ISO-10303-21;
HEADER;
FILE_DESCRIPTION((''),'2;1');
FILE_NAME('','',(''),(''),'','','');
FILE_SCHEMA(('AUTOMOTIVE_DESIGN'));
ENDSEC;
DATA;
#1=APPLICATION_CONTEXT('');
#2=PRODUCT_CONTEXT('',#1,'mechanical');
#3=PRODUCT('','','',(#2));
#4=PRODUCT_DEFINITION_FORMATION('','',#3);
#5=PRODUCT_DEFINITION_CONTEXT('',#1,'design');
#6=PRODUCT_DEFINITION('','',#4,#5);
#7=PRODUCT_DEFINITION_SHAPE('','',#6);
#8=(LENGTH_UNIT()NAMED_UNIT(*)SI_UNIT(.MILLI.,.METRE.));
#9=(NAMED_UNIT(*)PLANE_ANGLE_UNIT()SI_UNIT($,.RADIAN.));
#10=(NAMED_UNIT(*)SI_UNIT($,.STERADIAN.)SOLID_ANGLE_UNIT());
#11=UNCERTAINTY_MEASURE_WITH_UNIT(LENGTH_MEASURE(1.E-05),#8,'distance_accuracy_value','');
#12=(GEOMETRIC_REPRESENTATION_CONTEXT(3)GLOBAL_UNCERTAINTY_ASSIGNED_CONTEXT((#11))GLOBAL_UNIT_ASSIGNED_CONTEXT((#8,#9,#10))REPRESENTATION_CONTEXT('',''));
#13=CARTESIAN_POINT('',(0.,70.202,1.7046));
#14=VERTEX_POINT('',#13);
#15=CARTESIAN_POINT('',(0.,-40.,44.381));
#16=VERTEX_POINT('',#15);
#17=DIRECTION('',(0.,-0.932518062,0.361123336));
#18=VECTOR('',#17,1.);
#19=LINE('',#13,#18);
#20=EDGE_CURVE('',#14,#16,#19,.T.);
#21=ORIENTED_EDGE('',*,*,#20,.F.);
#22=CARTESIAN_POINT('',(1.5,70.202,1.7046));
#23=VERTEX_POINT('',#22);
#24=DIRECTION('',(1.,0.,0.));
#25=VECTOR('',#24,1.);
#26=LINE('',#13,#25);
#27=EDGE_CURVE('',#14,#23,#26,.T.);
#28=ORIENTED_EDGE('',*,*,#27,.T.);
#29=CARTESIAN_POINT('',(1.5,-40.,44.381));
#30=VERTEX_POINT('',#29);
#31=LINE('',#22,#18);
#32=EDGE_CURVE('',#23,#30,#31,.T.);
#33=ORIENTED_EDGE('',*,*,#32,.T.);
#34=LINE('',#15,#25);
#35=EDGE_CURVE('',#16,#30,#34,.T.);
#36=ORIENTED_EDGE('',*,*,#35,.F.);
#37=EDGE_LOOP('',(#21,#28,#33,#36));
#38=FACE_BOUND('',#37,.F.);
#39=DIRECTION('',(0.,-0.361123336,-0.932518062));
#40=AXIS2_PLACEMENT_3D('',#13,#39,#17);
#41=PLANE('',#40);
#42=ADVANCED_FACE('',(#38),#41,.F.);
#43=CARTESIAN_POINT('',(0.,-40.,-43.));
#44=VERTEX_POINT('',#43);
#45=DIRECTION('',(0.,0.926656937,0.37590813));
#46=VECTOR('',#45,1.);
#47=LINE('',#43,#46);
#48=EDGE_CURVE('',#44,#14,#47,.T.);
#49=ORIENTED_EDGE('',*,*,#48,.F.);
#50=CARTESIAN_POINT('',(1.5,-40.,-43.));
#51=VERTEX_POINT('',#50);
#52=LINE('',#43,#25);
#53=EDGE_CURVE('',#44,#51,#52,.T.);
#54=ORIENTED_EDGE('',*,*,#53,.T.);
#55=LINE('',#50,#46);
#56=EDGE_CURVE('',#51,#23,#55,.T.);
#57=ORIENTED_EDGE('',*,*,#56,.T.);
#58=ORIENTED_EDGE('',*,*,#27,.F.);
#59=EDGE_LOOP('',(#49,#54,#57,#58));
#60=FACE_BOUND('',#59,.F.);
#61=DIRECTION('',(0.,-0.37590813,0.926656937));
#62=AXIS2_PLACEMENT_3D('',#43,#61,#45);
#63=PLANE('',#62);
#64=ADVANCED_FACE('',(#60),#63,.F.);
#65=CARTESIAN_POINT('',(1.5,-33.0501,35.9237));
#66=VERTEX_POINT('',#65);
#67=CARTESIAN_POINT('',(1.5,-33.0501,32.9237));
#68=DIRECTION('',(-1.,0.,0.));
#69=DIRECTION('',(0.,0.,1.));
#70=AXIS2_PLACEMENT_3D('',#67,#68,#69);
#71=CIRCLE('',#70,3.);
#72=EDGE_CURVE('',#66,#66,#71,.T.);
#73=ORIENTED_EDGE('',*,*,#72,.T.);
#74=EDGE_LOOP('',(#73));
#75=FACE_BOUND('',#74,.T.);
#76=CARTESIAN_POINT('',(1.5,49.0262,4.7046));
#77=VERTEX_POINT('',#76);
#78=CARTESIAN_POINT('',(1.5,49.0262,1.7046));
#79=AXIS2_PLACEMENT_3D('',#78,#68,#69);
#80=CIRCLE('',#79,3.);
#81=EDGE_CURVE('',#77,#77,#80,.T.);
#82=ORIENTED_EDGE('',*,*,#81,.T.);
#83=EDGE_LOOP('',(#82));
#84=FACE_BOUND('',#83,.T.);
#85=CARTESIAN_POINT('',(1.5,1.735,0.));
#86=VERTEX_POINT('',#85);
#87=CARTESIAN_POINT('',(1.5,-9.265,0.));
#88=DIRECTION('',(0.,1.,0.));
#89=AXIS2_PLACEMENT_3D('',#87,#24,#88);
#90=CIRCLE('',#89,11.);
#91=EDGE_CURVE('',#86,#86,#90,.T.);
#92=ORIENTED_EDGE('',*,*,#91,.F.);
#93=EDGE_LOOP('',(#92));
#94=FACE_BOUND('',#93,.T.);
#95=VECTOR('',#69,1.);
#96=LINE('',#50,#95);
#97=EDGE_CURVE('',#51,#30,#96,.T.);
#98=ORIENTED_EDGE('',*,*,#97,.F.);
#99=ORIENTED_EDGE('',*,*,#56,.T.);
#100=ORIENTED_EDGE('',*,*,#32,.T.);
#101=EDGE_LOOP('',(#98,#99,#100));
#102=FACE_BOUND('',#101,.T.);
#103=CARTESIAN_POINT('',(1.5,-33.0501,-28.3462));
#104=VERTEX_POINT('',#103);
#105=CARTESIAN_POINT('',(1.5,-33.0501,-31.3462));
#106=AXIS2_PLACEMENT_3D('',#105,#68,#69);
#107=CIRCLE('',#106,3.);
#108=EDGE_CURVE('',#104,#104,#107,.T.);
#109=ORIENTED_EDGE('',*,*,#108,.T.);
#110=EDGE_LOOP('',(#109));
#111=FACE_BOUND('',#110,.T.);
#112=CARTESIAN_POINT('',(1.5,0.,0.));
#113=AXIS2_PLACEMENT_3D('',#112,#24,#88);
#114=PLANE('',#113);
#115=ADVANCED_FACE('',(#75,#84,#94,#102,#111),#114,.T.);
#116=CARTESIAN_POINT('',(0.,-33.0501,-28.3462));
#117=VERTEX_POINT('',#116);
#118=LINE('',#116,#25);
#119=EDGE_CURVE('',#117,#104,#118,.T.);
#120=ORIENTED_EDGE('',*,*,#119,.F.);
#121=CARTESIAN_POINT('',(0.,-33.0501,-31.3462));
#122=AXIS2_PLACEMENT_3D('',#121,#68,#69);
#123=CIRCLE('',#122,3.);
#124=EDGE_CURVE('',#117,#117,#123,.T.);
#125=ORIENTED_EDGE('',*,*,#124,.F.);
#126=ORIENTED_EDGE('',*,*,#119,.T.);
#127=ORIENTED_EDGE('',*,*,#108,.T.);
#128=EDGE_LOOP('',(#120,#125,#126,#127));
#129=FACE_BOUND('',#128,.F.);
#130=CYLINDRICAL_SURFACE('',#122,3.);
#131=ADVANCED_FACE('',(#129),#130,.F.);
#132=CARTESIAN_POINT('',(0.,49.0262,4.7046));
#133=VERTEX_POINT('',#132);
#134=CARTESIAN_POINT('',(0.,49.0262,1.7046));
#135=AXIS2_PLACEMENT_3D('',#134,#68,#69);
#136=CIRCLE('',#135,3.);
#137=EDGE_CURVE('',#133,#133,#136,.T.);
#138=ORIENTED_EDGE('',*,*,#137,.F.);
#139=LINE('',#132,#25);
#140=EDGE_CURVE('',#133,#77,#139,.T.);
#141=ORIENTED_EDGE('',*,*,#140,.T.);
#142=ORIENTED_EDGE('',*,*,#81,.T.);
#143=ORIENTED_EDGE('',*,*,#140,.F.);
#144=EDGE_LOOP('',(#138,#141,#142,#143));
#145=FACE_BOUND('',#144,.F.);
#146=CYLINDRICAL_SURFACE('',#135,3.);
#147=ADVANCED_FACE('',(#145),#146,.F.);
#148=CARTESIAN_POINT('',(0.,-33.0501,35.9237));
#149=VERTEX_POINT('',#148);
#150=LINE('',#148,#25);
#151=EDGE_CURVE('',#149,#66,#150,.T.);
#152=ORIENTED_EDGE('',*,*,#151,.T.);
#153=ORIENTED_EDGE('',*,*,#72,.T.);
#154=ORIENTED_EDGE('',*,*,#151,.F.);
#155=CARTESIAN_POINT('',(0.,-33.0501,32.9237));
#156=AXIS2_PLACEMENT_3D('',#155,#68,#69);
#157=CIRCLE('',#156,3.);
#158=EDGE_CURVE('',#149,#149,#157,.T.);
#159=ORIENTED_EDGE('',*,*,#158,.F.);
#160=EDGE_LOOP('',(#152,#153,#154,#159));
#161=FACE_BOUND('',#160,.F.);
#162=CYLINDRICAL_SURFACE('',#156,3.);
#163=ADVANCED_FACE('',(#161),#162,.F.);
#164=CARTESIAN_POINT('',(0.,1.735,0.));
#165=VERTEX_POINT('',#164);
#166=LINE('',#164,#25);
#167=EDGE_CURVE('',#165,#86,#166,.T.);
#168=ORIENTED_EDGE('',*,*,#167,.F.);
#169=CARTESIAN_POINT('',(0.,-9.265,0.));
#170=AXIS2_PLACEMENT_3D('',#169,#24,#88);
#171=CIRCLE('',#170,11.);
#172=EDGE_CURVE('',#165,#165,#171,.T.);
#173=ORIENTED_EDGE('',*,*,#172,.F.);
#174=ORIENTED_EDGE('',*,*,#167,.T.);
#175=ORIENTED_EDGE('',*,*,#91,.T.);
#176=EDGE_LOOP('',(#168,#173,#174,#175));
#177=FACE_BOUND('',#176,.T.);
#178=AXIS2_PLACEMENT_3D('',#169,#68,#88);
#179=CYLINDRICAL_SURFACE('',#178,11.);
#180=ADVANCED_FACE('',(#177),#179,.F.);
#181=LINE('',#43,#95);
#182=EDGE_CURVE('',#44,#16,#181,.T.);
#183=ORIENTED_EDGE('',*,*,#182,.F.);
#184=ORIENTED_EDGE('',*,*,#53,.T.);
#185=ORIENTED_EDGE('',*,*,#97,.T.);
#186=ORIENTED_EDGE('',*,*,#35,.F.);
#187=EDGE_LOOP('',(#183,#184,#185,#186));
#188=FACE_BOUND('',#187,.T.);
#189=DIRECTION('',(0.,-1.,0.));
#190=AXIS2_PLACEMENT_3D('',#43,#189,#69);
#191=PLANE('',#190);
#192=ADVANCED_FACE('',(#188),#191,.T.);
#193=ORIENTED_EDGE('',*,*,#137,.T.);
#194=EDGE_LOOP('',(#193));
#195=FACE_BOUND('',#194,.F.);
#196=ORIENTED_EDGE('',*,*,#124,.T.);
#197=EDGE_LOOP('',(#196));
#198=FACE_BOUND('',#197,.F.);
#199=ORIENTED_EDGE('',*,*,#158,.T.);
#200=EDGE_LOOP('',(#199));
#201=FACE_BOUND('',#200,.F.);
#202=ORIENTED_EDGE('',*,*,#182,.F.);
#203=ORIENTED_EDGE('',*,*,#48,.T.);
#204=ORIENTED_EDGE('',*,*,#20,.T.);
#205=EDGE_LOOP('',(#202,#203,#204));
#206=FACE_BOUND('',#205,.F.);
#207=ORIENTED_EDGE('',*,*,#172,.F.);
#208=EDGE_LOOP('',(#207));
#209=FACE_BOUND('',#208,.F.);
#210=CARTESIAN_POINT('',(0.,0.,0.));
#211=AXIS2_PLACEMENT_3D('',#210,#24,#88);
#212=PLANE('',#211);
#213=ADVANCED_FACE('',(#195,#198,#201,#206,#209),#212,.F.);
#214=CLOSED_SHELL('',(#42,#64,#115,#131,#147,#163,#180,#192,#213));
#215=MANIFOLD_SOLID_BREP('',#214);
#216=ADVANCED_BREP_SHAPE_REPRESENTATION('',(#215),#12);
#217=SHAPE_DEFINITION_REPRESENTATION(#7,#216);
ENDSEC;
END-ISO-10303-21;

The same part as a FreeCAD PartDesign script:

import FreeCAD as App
import Part
import Sketcher
from FreeCAD import Vector
Q = App.Units.Quantity

doc = App.newDocument("Part")
body = doc.addObject("PartDesign::Body", "Body")

# Sketch on YZ plane
sketch1 = doc.addObject("Sketcher::SketchObject", "Sketch")
body.addObject(sketch1)
sketch1.AttachmentSupport = (doc.YZ_Plane, [""])
sketch1.MapMode = "FlatFace"
sketch1.addGeometry(Part.LineSegment(Vector(-40, 44, 0), Vector(-40, -43, 0)), False)
sketch1.addGeometry(Part.LineSegment(Vector(-40, -43, 0), Vector(70, 2, 0)), False)
sketch1.addGeometry(Part.LineSegment(Vector(70, 2, 0), Vector(-40, 44, 0)), False)
sketch1.addGeometry(Part.Circle(Vector(-9, 0, 0), Vector(0, 0, 1), 11), False)
sketch1.addConstraint(Sketcher.Constraint("Coincident", 0, 2, 1, 1))
sketch1.addConstraint(Sketcher.Constraint("Coincident", 1, 2, 2, 1))
sketch1.addConstraint(Sketcher.Constraint("Coincident", 2, 2, 0, 1))
sketch1.addConstraint(Sketcher.Constraint("Vertical", 0))
sketch1.addConstraint(Sketcher.Constraint("PointOnObject", 3, 3, -1))
sketch1.addConstraint(Sketcher.Constraint("Diameter", 3, 22.0))
sketch1.addConstraint(Sketcher.Constraint("DistanceX", 0, 2, -1, 1, 40.0))
sketch1.addConstraint(Sketcher.Constraint("DistanceY", 0, 2, -1, 1, 43.0))
sketch1.addConstraint(Sketcher.Constraint("Angle", 1, Q("22.0805 deg")))
sketch1.addConstraint(Sketcher.Constraint("Angle", 2, Q("158.8308 deg")))
sketch1.addConstraint(Sketcher.Constraint("DistanceY", 0, 2, 0, 1, 87.381))
sketch1.addConstraint(Sketcher.Constraint("DistanceX", 3, 3, -1, 1, 9.265))
pad1 = doc.addObject("PartDesign::Pad", "Pad")
body.addObject(pad1)
pad1.Profile = sketch1
pad1.Length = 1.5

# Sketch on YZ plane
sketch2 = doc.addObject("Sketcher::SketchObject", "Sketch001")
body.addObject(sketch2)
sketch2.AttachmentSupport = (doc.YZ_Plane, [""])
sketch2.MapMode = "FlatFace"
sketch2.addGeometry(Part.Circle(Vector(49, 1.7, 0), Vector(0, 0, 1), 3), False)
sketch2.addGeometry(Part.Circle(Vector(-33.1, -31.3, 0), Vector(0, 0, 1), 3), False)
sketch2.addGeometry(Part.Circle(Vector(-33.1, 32.9, 0), Vector(0, 0, 1), 3), False)
sketch2.addConstraint(Sketcher.Constraint("Equal", 0, 1))
sketch2.addConstraint(Sketcher.Constraint("Equal", 1, 2))
sketch2.addConstraint(Sketcher.Constraint("Vertical", 1, 3, 2, 3))
sketch2.addConstraint(Sketcher.Constraint("Diameter", 0, 6.0))
sketch2.addConstraint(Sketcher.Constraint("DistanceX", 1, 3, -1, 1, 33.05))
sketch2.addConstraint(Sketcher.Constraint("DistanceY", 1, 3, 2, 3, 64.27))
sketch2.addConstraint(Sketcher.Constraint("DistanceY", 0, 3, 2, 3, 31.219))
sketch2.addConstraint(Sketcher.Constraint("DistanceX", -1, 1, 0, 3, 49.0262))
sketch2.addConstraint(Sketcher.Constraint("DistanceY", -1, 1, 0, 3, 1.7046))
pocket1 = doc.addObject("PartDesign::Pocket", "Pocket")
body.addObject(pocket1)
pocket1.Profile = sketch2
pocket1.Length = 2
pocket1.Reversed = True

doc.recompute()
